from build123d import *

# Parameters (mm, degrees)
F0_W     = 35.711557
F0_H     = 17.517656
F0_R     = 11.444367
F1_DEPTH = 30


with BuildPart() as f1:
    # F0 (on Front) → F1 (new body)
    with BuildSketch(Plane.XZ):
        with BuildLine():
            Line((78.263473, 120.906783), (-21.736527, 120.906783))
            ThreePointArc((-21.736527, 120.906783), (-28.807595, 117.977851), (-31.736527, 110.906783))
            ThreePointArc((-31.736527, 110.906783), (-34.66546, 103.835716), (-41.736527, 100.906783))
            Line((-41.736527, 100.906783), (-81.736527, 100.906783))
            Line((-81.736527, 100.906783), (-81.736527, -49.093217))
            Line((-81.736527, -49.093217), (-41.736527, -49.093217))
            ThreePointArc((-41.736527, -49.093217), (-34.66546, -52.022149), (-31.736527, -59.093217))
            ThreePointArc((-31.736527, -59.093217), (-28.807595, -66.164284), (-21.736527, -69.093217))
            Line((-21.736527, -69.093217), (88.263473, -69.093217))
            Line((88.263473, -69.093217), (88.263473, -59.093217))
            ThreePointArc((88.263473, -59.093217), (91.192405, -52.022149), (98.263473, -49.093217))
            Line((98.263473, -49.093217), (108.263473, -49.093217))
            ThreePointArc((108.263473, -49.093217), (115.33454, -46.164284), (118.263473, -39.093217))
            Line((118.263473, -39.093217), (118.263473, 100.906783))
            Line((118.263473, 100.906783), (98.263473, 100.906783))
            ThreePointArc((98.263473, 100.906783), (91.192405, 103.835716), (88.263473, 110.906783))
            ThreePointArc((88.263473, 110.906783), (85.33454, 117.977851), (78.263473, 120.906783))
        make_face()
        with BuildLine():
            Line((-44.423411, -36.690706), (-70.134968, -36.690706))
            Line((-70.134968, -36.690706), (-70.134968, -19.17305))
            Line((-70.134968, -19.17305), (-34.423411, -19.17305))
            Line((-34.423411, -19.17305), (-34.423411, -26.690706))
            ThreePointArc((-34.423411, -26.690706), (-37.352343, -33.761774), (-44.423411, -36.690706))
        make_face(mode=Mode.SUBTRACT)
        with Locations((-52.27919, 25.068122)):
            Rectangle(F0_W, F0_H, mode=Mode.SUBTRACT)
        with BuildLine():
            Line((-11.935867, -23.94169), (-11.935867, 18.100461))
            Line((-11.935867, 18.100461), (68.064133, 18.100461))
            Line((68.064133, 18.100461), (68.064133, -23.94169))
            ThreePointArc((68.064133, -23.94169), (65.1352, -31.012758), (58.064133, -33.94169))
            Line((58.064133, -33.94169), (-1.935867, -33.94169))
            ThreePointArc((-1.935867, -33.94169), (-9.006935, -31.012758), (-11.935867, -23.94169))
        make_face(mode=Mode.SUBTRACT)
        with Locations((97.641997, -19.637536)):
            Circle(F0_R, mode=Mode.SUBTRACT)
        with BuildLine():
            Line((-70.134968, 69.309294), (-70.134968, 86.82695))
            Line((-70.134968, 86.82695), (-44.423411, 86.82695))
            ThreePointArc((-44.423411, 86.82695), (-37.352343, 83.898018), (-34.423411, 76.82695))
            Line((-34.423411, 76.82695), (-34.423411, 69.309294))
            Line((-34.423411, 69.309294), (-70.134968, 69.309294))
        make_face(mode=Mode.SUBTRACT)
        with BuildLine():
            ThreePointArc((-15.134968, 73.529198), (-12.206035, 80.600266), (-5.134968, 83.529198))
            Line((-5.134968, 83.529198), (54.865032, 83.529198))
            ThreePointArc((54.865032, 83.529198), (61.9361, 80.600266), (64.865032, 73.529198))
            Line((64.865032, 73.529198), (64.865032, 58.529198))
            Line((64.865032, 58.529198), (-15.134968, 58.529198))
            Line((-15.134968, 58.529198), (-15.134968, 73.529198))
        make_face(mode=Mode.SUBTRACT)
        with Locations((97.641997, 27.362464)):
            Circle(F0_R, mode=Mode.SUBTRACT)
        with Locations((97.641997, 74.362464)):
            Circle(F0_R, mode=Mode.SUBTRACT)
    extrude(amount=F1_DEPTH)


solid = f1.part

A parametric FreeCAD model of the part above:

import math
import FreeCAD as App
import Part
import Sketcher

V = App.Vector


def add_polygon(sketch, points):
    """Adds a closed chain of lines whose ends are joined by coincident constraints."""
    first, n = sketch.GeometryCount, len(points)
    for a, b in zip(points, points[1:] + points[:1]):
        sketch.addGeometry(Part.LineSegment(App.Vector(*a, 0), App.Vector(*b, 0)), False)
    for i in range(n):
        sketch.addConstraint(Sketcher.Constraint("Coincident", first + i, 2, first + (i + 1) % n, 1))

doc = App.newDocument("Part")
body = doc.addObject("PartDesign::Body", "Body")

# Sketch on XZ plane
sketch1 = body.newObject("Sketcher::SketchObject", "Sketch")
sketch1.AttachmentSupport = (doc.getObject("XZ_Plane"), [""])
sketch1.MapMode = "FlatFace"
sketch1.addGeometry(Part.LineSegment(V(78, 121, 0), V(-22, 121, 0)), False)  # 0
sketch1.addGeometry(Part.ArcOfCircle(Part.Circle(V(-22, 111, 0), V(0, 0, 1), 10), math.radians(90), math.radians(180)), False)  # 1
sketch1.addGeometry(Part.ArcOfCircle(Part.Circle(V(-42, 111, 0), V(0, 0, 1), 10), math.radians(-90), math.radians(0)), False)  # 2
sketch1.addGeometry(Part.LineSegment(V(-42, 101, 0), V(-82, 101, 0)), False)  # 3
sketch1.addGeometry(Part.LineSegment(V(-82, 101, 0), V(-82, -49, 0)), False)  # 4
sketch1.addGeometry(Part.LineSegment(V(-82, -49, 0), V(-42, -49, 0)), False)  # 5
sketch1.addGeometry(Part.ArcOfCircle(Part.Circle(V(-42, -59, 0), V(0, 0, 1), 10), math.radians(0), math.radians(90)), False)  # 6
sketch1.addGeometry(Part.ArcOfCircle(Part.Circle(V(-22, -59, 0), V(0, 0, 1), 10), math.radians(-180), math.radians(-90)), False)  # 7
sketch1.addGeometry(Part.LineSegment(V(-22, -69, 0), V(88, -69, 0)), False)  # 8
sketch1.addGeometry(Part.LineSegment(V(88, -69, 0), V(88, -59, 0)), False)  # 9
sketch1.addGeometry(Part.ArcOfCircle(Part.Circle(V(98, -59, 0), V(0, 0, 1), 10), math.radians(90), math.radians(180)), False)  # 10
sketch1.addGeometry(Part.LineSegment(V(98, -49, 0), V(108, -49, 0)), False)  # 11
sketch1.addGeometry(Part.ArcOfCircle(Part.Circle(V(108, -39, 0), V(0, 0, 1), 10), math.radians(-90), math.radians(0)), False)  # 12
sketch1.addGeometry(Part.LineSegment(V(118, -39, 0), V(118, 101, 0)), False)  # 13
sketch1.addGeometry(Part.LineSegment(V(118, 101, 0), V(98, 101, 0)), False)  # 14
sketch1.addGeometry(Part.ArcOfCircle(Part.Circle(V(98, 111, 0), V(0, 0, 1), 10), math.radians(-180), math.radians(-90)), False)  # 15
sketch1.addGeometry(Part.ArcOfCircle(Part.Circle(V(78, 111, 0), V(0, 0, 1), 10), math.radians(0), math.radians(90)), False)  # 16
sketch1.addGeometry(Part.ArcOfCircle(Part.Circle(V(-44, -27, 0), V(0, 0, 1), 10), math.radians(-90), math.radians(0)), False)  # 17
sketch1.addGeometry(Part.LineSegment(V(-44, -37, 0), V(-70, -37, 0)), False)  # 18
sketch1.addGeometry(Part.LineSegment(V(-70, -37, 0), V(-70, -19, 0)), False)  # 19
sketch1.addGeometry(Part.LineSegment(V(-70, -19, 0), V(-34, -19, 0)), False)  # 20
sketch1.addGeometry(Part.LineSegment(V(-34, -19, 0), V(-34, -27, 0)), False)  # 21
sketch1.addGeometry(Part.ArcOfCircle(Part.Circle(V(-2, -24, 0), V(0, 0, 1), 10), math.radians(180), math.radians(270)), False)  # 22
sketch1.addGeometry(Part.LineSegment(V(-12, -24, 0), V(-12, 18, 0)), False)  # 23
sketch1.addGeometry(Part.LineSegment(V(-12, 18, 0), V(68, 18, 0)), False)  # 24
sketch1.addGeometry(Part.LineSegment(V(68, 18, 0), V(68, -24, 0)), False)  # 25
sketch1.addGeometry(Part.ArcOfCircle(Part.Circle(V(58, -24, 0), V(0, 0, 1), 10), math.radians(-90), math.radians(0)), False)  # 26
sketch1.addGeometry(Part.LineSegment(V(58, -34, 0), V(-2, -34, 0)), False)  # 27
sketch1.addGeometry(Part.Circle(V(98, -20, 0), V(0, 0, 1), 11), False)  # 28
add_polygon(sketch1, [(-34, 16), (-70, 16), (-70, 34), (-34, 34)])  # lines 29-32
sketch1.addGeometry(Part.LineSegment(V(-34, 69, 0), V(-70, 69, 0)), False)  # 33
sketch1.addGeometry(Part.LineSegment(V(-70, 69, 0), V(-70, 87, 0)), False)  # 34
sketch1.addGeometry(Part.LineSegment(V(-70, 87, 0), V(-44, 87, 0)), False)  # 35
sketch1.addGeometry(Part.ArcOfCircle(Part.Circle(V(-44, 77, 0), V(0, 0, 1), 10), math.radians(0), math.radians(90)), False)  # 36
sketch1.addGeometry(Part.LineSegment(V(-34, 77, 0), V(-34, 69, 0)), False)  # 37
sketch1.addGeometry(Part.Circle(V(98, 27, 0), V(0, 0, 1), 11), False)  # 38
sketch1.addGeometry(Part.LineSegment(V(-15, 59, 0), V(-15, 74, 0)), False)  # 39
sketch1.addGeometry(Part.ArcOfCircle(Part.Circle(V(-5, 74, 0), V(0, 0, 1), 10), math.radians(90), math.radians(180)), False)  # 40
sketch1.addGeometry(Part.LineSegment(V(-5, 84, 0), V(55, 84, 0)), False)  # 41
sketch1.addGeometry(Part.ArcOfCircle(Part.Circle(V(55, 74, 0), V(0, 0, 1), 10), math.radians(0), math.radians(90)), False)  # 42
sketch1.addGeometry(Part.LineSegment(V(65, 74, 0), V(65, 59, 0)), False)  # 43
sketch1.addGeometry(Part.LineSegment(V(65, 59, 0), V(-15, 59, 0)), False)  # 44
sketch1.addGeometry(Part.Circle(V(98, 74, 0), V(0, 0, 1), 11), False)  # 45
sketch1.addConstraint(Sketcher.Constraint("Tangent", 0, 2, 1, 1))
sketch1.addConstraint(Sketcher.Constraint("Tangent", 1, 2, 2, 2))
sketch1.addConstraint(Sketcher.Constraint("Tangent", 2, 1, 3, 1))
sketch1.addConstraint(Sketcher.Constraint("Coincident", 3, 2, 4, 1))
sketch1.addConstraint(Sketcher.Constraint("Coincident", 4, 2, 5, 1))
sketch1.addConstraint(Sketcher.Constraint("Tangent", 5, 2, 6, 2))
sketch1.addConstraint(Sketcher.Constraint("Tangent", 6, 1, 7, 1))
sketch1.addConstraint(Sketcher.Constraint("Tangent", 7, 2, 8, 1))
sketch1.addConstraint(Sketcher.Constraint("Coincident", 8, 2, 9, 1))
sketch1.addConstraint(Sketcher.Constraint("Tangent", 9, 2, 10, 2))
sketch1.addConstraint(Sketcher.Constraint("Tangent", 10, 1, 11, 1))
sketch1.addConstraint(Sketcher.Constraint("Tangent", 11, 2, 12, 1))
sketch1.addConstraint(Sketcher.Constraint("Tangent", 12, 2, 13, 1))
sketch1.addConstraint(Sketcher.Constraint("Coincident", 13, 2, 14, 1))
sketch1.addConstraint(Sketcher.Constraint("Tangent", 14, 2, 15, 2))
sketch1.addConstraint(Sketcher.Constraint("Tangent", 15, 1, 16, 1))
sketch1.addConstraint(Sketcher.Constraint("Tangent", 16, 2, 0, 1))
sketch1.addConstraint(Sketcher.Constraint("Tangent", 17, 1, 18, 1))
sketch1.addConstraint(Sketcher.Constraint("Coincident", 18, 2, 19, 1))
sketch1.addConstraint(Sketcher.Constraint("Coincident", 19, 2, 20, 1))
sketch1.addConstraint(Sketcher.Constraint("Coincident", 20, 2, 21, 1))
sketch1.addConstraint(Sketcher.Constraint("Tangent", 21, 2, 17, 2))
sketch1.addConstraint(Sketcher.Constraint("Tangent", 22, 1, 23, 1))
sketch1.addConstraint(Sketcher.Constraint("Coincident", 23, 2, 24, 1))
sketch1.addConstraint(Sketcher.Constraint("Coincident", 24, 2, 25, 1))
sketch1.addConstraint(Sketcher.Constraint("Tangent", 25, 2, 26, 2))
sketch1.addConstraint(Sketcher.Constraint("Tangent", 26, 1, 27, 1))
sketch1.addConstraint(Sketcher.Constraint("Tangent", 27, 2, 22, 2))
sketch1.addConstraint(Sketcher.Constraint("Coincident", 33, 2, 34, 1))
sketch1.addConstraint(Sketcher.Constraint("Coincident", 34, 2, 35, 1))
sketch1.addConstraint(Sketcher.Constraint("Tangent", 35, 2, 36, 2))
sketch1.addConstraint(Sketcher.Constraint("Tangent", 36, 1, 37, 1))
sketch1.addConstraint(Sketcher.Constraint("Coincident", 37, 2, 33, 1))
sketch1.addConstraint(Sketcher.Constraint("Tangent", 39, 2, 40, 2))
sketch1.addConstraint(Sketcher.Constraint("Tangent", 40, 1, 41, 1))
sketch1.addConstraint(Sketcher.Constraint("Tangent", 41, 2, 42, 2))
sketch1.addConstraint(Sketcher.Constraint("Tangent", 42, 1, 43, 1))
sketch1.addConstraint(Sketcher.Constraint("Coincident", 43, 2, 44, 1))
sketch1.addConstraint(Sketcher.Constraint("Coincident", 44, 2, 39, 1))
sketch1.addConstraint(Sketcher.Constraint("Horizontal", 0))
sketch1.addConstraint(Sketcher.Constraint("Horizontal", 3))
sketch1.addConstraint(Sketcher.Constraint("Vertical", 4))
sketch1.addConstraint(Sketcher.Constraint("Horizontal", 5))
sketch1.addConstraint(Sketcher.Constraint("Horizontal", 8))
sketch1.addConstraint(Sketcher.Constraint("Vertical", 9))
sketch1.addConstraint(Sketcher.Constraint("Horizontal", 11))
sketch1.addConstraint(Sketcher.Constraint("Vertical", 13))
sketch1.addConstraint(Sketcher.Constraint("Horizontal", 14))
sketch1.addConstraint(Sketcher.Constraint("Horizontal", 18))
sketch1.addConstraint(Sketcher.Constraint("Vertical", 19))
sketch1.addConstraint(Sketcher.Constraint("Horizontal", 20))
sketch1.addConstraint(Sketcher.Constraint("Vertical", 21))
sketch1.addConstraint(Sketcher.Constraint("Vertical", 23))
sketch1.addConstraint(Sketcher.Constraint("Horizontal", 24))
sketch1.addConstraint(Sketcher.Constraint("Vertical", 25))
sketch1.addConstraint(Sketcher.Constraint("Horizontal", 27))
sketch1.addConstraint(Sketcher.Constraint("Horizontal", 29))
sketch1.addConstraint(Sketcher.Constraint("Vertical", 30))
sketch1.addConstraint(Sketcher.Constraint("Horizontal", 31))
sketch1.addConstraint(Sketcher.Constraint("Vertical", 32))
sketch1.addConstraint(Sketcher.Constraint("Horizontal", 33))
sketch1.addConstraint(Sketcher.Constraint("Vertical", 34))
sketch1.addConstraint(Sketcher.Constraint("Horizontal", 35))
sketch1.addConstraint(Sketcher.Constraint("Vertical", 37))
sketch1.addConstraint(Sketcher.Constraint("Vertical", 39))
sketch1.addConstraint(Sketcher.Constraint("Horizontal", 41))
sketch1.addConstraint(Sketcher.Constraint("Vertical", 43))
sketch1.addConstraint(Sketcher.Constraint("Horizontal", 44))
sketch1.addConstraint(Sketcher.Constraint("Equal", 2, 6))
sketch1.addConstraint(Sketcher.Constraint("Equal", 6, 7))
sketch1.addConstraint(Sketcher.Constraint("Equal", 7, 10))
sketch1.addConstraint(Sketcher.Constraint("Equal", 7, 12))
sketch1.addConstraint(Sketcher.Constraint("Equal", 12, 15))
sketch1.addConstraint(Sketcher.Constraint("Equal", 15, 16))
sketch1.addConstraint(Sketcher.Constraint("Equal", 16, 17))
sketch1.addConstraint(Sketcher.Constraint("Equal", 17, 22))
sketch1.addConstraint(Sketcher.Constraint("Equal", 22, 26))
sketch1.addConstraint(Sketcher.Constraint("Equal", 26, 36))
sketch1.addConstraint(Sketcher.Constraint("Equal", 28, 38))
sketch1.addConstraint(Sketcher.Constraint("Equal", 36, 40))
sketch1.addConstraint(Sketcher.Constraint("Equal", 40, 42))
sketch1.addConstraint(Sketcher.Constraint("Equal", 38, 45))
sketch1.addConstraint(Sketcher.Constraint("Horizontal", 7, 3, 10, 3))
sketch1.addConstraint(Sketcher.Constraint("Horizontal", 2, 3, 15, 3))
sketch1.addConstraint(Sketcher.Constraint("Horizontal", 1, 3, 16, 3))
sketch1.addConstraint(Sketcher.Constraint("Horizontal", 16, 3, 1, 2))
sketch1.addConstraint(Sketcher.Constraint("Horizontal", 10, 3, 6, 1))
sketch1.addConstraint(Sketcher.Constraint("Vertical", 2, 3, 6, 3))
sketch1.addConstraint(Sketcher.Constraint("Vertical", 10, 3, 15, 3))
sketch1.addConstraint(Sketcher.Constraint("Vertical", 17, 3, 36, 3))
sketch1.addConstraint(Sketcher.Constraint("Vertical", 28, 3, 38, 3))
sketch1.addConstraint(Sketcher.Constraint("Vertical", 38, 3, 45, 3))
sketch1.addConstraint(Sketcher.Constraint("Vertical", 19, 2, 29, 2))
sketch1.addConstraint(Sketcher.Constraint("Vertical", 21, 2, 31, 2))
sketch1.addConstraint(Sketcher.Constraint("Vertical", 30, 2, 33, 2))
sketch1.addConstraint(Sketcher.Constraint("Equal", 27, 41))
sketch1.addConstraint(Sketcher.Constraint("Equal", 11, 9))
sketch1.addConstraint(Sketcher.Constraint("Equal", 19, 30))
sketch1.addConstraint(Sketcher.Constraint("Equal", 32, 34))
sketch1.addConstraint(Sketcher.Constraint("Radius", 1, 9.999999))
sketch1.addConstraint(Sketcher.Constraint("DistanceX", 0, 2, 0, 1, 100.0))
sketch1.addConstraint(Sketcher.Constraint("DistanceX", 3, 2, 3, 1, 40.0))
sketch1.addConstraint(Sketcher.Constraint("DistanceX", 24, 1, 24, 2, 80.0))
sketch1.addConstraint(Sketcher.Constraint("DistanceY", 4, 2, 4, 1, 150.0))
sketch1.addConstraint(Sketcher.Constraint("DistanceY", 39, 1, 39, 2, 15.0))
sketch1.addConstraint(Sketcher.Constraint("DistanceY", 28, 3, 38, 3, 47.0))
sketch1.addConstraint(Sketcher.Constraint("DistanceY", 38, 3, 45, 3, 47.0))
sketch1.addConstraint(Sketcher.Constraint("DistanceY", 17, 3, 29, 2, 43.000001))
sketch1.addConstraint(Sketcher.Constraint("DistanceY", 30, 2, 36, 3, 43.000001))
sketch1.addConstraint(Sketcher.Constraint("Diameter", 28, 22.888734))
sketch1.addConstraint(Sketcher.Constraint("DistanceY", 23, 1, 23, 2, 42.042151))
sketch1.addConstraint(Sketcher.Constraint("DistanceY", -1, 1, 42, 3, 73.529199))
sketch1.addConstraint(Sketcher.Constraint("DistanceX", 40, 3, 22, 3, 3.199099))
sketch1.addConstraint(Sketcher.Constraint("DistanceX", 30, 2, 23, 2, 58.199101))
sketch1.addConstraint(Sketcher.Constraint("DistanceX", 18, 2, 18, 1, 25.711557))
sketch1.addConstraint(Sketcher.Constraint("DistanceY", 19, 1, 19, 2, 17.517656))
sketch1.addConstraint(Sketcher.Constraint("DistanceX", 2, 3, -1, 1, 41.73653))
sketch1.addConstraint(Sketcher.Constraint("DistanceY", 6, 3, -1, 1, 59.093218))
sketch1.addConstraint(Sketcher.Constraint("DistanceX", 17, 3, -1, 1, 44.42341))
sketch1.addConstraint(Sketcher.Constraint("DistanceY", 22, 3, -1, 1, 23.941691))
sketch1.addConstraint(Sketcher.Constraint("DistanceY", -1, 1, 36, 3, 76.826951))
sketch1.addConstraint(Sketcher.Constraint("DistanceY", 12, 3, 28, 3, 19.455678))
sketch1.addConstraint(Sketcher.Constraint("DistanceX", -1, 1, 28, 3, 97.641997))
pad1 = body.newObject("PartDesign::Pad", "Pad")
pad1.Profile = sketch1
pad1.Length = 30

doc.recompute()
